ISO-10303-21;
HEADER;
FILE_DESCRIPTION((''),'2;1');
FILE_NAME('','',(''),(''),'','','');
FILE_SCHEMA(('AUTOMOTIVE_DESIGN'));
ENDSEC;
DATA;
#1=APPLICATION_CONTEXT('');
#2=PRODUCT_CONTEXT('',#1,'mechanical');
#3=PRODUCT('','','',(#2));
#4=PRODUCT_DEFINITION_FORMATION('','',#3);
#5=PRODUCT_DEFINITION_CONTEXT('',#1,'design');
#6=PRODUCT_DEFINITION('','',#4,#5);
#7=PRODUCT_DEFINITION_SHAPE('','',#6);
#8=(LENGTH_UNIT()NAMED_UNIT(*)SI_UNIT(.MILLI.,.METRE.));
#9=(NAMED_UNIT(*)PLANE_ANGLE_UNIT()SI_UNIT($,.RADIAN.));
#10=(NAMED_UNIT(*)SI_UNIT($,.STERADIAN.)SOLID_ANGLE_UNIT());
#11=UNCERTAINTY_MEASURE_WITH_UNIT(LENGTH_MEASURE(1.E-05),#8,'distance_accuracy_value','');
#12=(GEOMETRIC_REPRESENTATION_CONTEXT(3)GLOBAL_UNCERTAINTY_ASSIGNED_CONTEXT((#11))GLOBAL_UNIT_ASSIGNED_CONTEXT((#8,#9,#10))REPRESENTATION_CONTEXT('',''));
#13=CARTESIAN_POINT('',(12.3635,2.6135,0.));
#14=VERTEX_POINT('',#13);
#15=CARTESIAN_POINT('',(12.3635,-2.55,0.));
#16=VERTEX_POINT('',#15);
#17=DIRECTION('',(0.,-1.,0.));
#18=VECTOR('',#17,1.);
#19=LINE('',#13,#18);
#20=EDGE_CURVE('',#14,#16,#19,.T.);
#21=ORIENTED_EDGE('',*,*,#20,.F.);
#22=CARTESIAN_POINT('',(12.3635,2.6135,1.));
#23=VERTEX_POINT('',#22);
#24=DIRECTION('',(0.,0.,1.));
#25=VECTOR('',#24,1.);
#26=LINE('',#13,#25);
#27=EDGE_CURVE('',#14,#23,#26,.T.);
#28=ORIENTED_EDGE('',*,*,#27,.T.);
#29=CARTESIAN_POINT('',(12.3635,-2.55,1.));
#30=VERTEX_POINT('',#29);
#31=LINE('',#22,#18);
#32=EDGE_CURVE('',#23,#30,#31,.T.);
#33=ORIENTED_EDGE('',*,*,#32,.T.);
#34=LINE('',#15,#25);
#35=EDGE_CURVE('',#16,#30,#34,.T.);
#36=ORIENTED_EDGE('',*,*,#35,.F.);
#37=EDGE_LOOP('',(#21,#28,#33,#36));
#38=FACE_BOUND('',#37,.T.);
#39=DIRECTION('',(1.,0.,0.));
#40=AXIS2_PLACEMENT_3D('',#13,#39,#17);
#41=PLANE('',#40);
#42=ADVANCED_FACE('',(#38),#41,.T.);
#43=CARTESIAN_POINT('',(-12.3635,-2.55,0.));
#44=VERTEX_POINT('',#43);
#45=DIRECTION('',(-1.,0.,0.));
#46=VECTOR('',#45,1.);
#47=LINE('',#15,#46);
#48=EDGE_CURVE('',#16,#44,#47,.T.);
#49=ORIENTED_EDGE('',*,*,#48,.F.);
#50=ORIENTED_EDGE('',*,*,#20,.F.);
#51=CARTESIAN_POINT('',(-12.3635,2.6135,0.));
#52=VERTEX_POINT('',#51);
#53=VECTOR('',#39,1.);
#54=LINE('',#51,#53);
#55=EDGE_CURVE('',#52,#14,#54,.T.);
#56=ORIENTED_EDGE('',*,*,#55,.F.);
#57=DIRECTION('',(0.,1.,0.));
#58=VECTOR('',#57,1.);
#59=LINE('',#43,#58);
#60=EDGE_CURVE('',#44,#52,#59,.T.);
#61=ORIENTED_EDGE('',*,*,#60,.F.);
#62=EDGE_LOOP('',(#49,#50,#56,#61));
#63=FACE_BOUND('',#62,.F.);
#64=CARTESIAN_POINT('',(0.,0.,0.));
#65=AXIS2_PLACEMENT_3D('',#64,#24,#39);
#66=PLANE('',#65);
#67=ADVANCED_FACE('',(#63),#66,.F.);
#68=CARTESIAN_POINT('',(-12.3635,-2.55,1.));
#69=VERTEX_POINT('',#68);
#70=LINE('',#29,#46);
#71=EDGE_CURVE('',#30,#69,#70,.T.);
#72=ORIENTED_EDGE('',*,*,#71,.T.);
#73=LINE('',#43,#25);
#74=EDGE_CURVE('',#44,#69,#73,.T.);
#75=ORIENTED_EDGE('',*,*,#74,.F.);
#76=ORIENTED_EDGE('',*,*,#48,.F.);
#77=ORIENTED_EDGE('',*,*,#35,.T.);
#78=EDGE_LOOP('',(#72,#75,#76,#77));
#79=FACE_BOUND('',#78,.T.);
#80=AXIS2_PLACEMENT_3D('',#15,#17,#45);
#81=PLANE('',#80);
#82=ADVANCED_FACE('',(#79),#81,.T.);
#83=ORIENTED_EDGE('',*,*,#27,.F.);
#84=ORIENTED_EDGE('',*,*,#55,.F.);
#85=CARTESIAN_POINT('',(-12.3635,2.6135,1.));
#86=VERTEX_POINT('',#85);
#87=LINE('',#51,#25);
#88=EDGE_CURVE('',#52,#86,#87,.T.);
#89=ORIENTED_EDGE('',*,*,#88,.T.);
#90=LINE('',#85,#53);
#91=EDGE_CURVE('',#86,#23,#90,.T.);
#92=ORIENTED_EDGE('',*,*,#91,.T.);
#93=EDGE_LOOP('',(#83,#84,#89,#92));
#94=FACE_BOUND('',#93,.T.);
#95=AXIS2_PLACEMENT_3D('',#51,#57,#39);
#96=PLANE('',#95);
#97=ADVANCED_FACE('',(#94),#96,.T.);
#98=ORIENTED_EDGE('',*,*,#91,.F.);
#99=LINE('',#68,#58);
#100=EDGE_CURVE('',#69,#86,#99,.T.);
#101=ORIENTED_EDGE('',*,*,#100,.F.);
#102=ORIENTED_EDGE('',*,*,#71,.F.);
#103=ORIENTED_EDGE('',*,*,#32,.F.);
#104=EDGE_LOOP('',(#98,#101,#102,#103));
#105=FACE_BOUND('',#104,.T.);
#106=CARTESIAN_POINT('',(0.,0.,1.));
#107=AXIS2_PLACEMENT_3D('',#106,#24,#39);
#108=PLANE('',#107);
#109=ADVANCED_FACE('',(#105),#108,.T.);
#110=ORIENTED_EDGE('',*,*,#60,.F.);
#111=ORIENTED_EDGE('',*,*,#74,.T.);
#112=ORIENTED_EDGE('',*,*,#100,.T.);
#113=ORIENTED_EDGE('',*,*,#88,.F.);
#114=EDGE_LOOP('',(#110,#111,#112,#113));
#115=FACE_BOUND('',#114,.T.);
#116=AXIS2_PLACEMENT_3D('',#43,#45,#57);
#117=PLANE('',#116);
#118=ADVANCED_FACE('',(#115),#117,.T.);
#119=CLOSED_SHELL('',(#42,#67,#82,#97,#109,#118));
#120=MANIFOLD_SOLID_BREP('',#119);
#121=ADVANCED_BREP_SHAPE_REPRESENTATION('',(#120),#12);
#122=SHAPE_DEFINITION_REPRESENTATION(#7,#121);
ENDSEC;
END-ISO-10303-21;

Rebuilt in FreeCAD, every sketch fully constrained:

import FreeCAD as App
import Part
import Sketcher
from FreeCAD import Vector

doc = App.newDocument("Part")
params = doc.addObject("Spreadsheet::Sheet", "Params")
for row, (alias, value) in enumerate([
    ("pad1_length", "1 mm"),
], start=1):
    params.set(f"A{row}", alias)
    params.set(f"B{row}", "=" + value)
    params.setAlias(f"B{row}", alias)

body = doc.addObject("PartDesign::Body", "Body")

# Sketch on XY plane
sketch1 = body.newObject("Sketcher::SketchObject", "Sketch")
sketch1.AttachmentSupport = (doc.getObject("XY_Plane"), [""])
sketch1.MapMode = "FlatFace"
sketch1.addGeometry(Part.LineSegment(Vector(12, 3, 0), Vector(-12, 3, 0)), False)
sketch1.addGeometry(Part.LineSegment(Vector(-12, 3, 0), Vector(-12, -3, 0)), False)
sketch1.addGeometry(Part.LineSegment(Vector(-12, -3, 0), Vector(12, -3, 0)), False)
sketch1.addGeometry(Part.LineSegment(Vector(12, -3, 0), Vector(12, 3, 0)), False)
sketch1.addConstraint(Sketcher.Constraint("Coincident", 0, 2, 1, 1))
sketch1.addConstraint(Sketcher.Constraint("Coincident", 1, 2, 2, 1))
sketch1.addConstraint(Sketcher.Constraint("Coincident", 2, 2, 3, 1))
sketch1.addConstraint(Sketcher.Constraint("Coincident", 3, 2, 0, 1))
sketch1.addConstraint(Sketcher.Constraint("Horizontal", 0))
sketch1.addConstraint(Sketcher.Constraint("Vertical", 1))
sketch1.addConstraint(Sketcher.Constraint("Horizontal", 2))
sketch1.addConstraint(Sketcher.Constraint("Vertical", 3))
sketch1.addConstraint(Sketcher.Constraint("DistanceX", 0, 2, 0, 1, 24.727))
sketch1.addConstraint(Sketcher.Constraint("DistanceY", 1, 2, -1, 1, 2.55))
sketch1.addConstraint(Sketcher.Constraint("DistanceY", 1, 2, 1, 1, 5.1635))
sketch1.addConstraint(Sketcher.Constraint("DistanceX", 0, 2, -1, 1, 12.3635))
pad1 = body.newObject("PartDesign::Pad", "Pad")
pad1.Profile = sketch1
pad1.setExpression("Length", "Params.pad1_length")

doc.recompute()
